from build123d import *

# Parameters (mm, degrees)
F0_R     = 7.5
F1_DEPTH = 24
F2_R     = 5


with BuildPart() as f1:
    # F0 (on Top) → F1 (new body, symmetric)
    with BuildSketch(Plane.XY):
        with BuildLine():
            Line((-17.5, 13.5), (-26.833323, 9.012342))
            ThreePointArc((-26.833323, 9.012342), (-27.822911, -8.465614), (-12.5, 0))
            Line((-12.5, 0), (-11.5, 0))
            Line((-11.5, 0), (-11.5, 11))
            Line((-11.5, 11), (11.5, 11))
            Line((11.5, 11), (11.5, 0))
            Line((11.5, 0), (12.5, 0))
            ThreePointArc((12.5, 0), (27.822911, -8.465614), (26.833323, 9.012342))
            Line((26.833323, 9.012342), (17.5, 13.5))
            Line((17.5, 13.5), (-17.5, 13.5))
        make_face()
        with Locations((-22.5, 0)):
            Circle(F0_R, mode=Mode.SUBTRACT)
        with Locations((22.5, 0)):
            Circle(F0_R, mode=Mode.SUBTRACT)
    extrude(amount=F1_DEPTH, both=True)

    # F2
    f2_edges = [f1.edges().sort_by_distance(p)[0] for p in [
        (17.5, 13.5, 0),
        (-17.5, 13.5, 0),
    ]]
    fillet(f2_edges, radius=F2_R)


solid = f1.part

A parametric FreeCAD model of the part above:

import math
import FreeCAD as App
import Part
import Sketcher

V = App.Vector
Q = App.Units.Quantity


def edges_at(feature, points):
    """Names of the edges that pass closest to the given points."""
    edges = feature.Shape.Edges
    near = lambda p: min(range(len(edges)), key=lambda i: edges[i].distToShape(Part.Vertex(*p))[0])
    return sorted({f"Edge{near(p) + 1}" for p in points})

doc = App.newDocument("Part")
body = doc.addObject("PartDesign::Body", "Body")

# Sketch on XY plane
sketch1 = body.newObject("Sketcher::SketchObject", "Sketch")
sketch1.AttachmentSupport = (doc.getObject("XY_Plane"), [""])
sketch1.MapMode = "FlatFace"
sketch1.addGeometry([
    Part.LineSegment(V(-17.5, 13.5, 0), V(-26.833323, 9.012342, 0)),  # 0
    Part.ArcOfCircle(Part.Circle(V(-22.5, 0, 0), V(0, 0, 1), 10), math.radians(115.679223), math.radians(360.000001)),  # 1
    Part.LineSegment(V(-12.5, 0, 0), V(-11.5, 0, 0)),  # 2
    Part.LineSegment(V(-11.5, 0, 0), V(-11.5, 11, 0)),  # 3
    Part.LineSegment(V(-11.5, 11, 0), V(11.5, 11, 0)),  # 4
    Part.LineSegment(V(11.5, 11, 0), V(11.5, 0, 0)),  # 5
    Part.LineSegment(V(11.5, 0, 0), V(12.5, 0, 0)),  # 6
    Part.ArcOfCircle(Part.Circle(V(22.5, 0, 0), V(0, 0, 1), 10), math.radians(179.999999), math.radians(424.320777)),  # 7
    Part.LineSegment(V(26.833323, 9.012342, 0), V(17.5, 13.5, 0)),  # 8
    Part.LineSegment(V(17.5, 13.5, 0), V(-17.5, 13.5, 0)),  # 9
    Part.Circle(V(-22.5, 0, 0), V(0, 0, 1), 7.5),  # 10
    Part.Circle(V(22.5, 0, 0), V(0, 0, 1), 7.5),  # 11
], False)
sketch1.addConstraint([
    Sketcher.Constraint("Tangent", 0, 2, 1, 1),
    Sketcher.Constraint("Coincident", 1, 2, 2, 1),
    Sketcher.Constraint("Coincident", 2, 2, 3, 1),
    Sketcher.Constraint("Coincident", 3, 2, 4, 1),
    Sketcher.Constraint("Coincident", 4, 2, 5, 1),
    Sketcher.Constraint("Coincident", 5, 2, 6, 1),
    Sketcher.Constraint("Coincident", 6, 2, 7, 1),
    Sketcher.Constraint("Tangent", 7, 2, 8, 1),
    Sketcher.Constraint("Coincident", 8, 2, 9, 1),
    Sketcher.Constraint("Coincident", 9, 2, 0, 1),
    Sketcher.Constraint("Horizontal", 2),
    Sketcher.Constraint("Vertical", 3),
    Sketcher.Constraint("Horizontal", 4),
    Sketcher.Constraint("Vertical", 5),
    Sketcher.Constraint("Horizontal", 6),
    Sketcher.Constraint("Horizontal", 9),
    Sketcher.Constraint("Coincident", 10, 3, 1, 3),
    Sketcher.Constraint("Coincident", 11, 3, 7, 3),
    Sketcher.Constraint("Equal", 1, 7),
    Sketcher.Constraint("Equal", 10, 11),
    Sketcher.Constraint("Symmetric", 1, 3, 7, 3, -1, 1),
    Sketcher.Constraint("Symmetric", 2, 2, 5, 2, -1, 1),
    Sketcher.Constraint("Symmetric", 0, 2, 7, 2, -2),
    Sketcher.Constraint("PointOnObject", 1, 2, -1),
    Sketcher.Constraint("Diameter", 10, Q("15 mm")),
    Sketcher.Constraint("Radius", 1, Q("10 mm")),
    Sketcher.Constraint("DistanceX", 2, 1, 2, 2, Q("1 mm")),
    Sketcher.Constraint("DistanceX", 4, 1, 4, 2, Q("23 mm")),
    Sketcher.Constraint("DistanceX", 9, 2, 9, 1, Q("35 mm")),
    Sketcher.Constraint("DistanceY", 3, 1, 3, 2, Q("11 mm")),
    Sketcher.Constraint("DistanceY", -1, 1, 8, 2, Q("13.5 mm")),
])
pad1 = body.newObject("PartDesign::Pad", "Pad")
pad1.Profile = sketch1
pad1.Length = 48
pad1.Midplane = True
doc.recompute()

fillet = body.newObject("PartDesign::Fillet", "Fillet")
fillet.Base = (pad1, edges_at(pad1, [(17.5, 13.5, 0), (-17.5, 13.5, 0)]))
fillet.Radius = 5

doc.recompute()
